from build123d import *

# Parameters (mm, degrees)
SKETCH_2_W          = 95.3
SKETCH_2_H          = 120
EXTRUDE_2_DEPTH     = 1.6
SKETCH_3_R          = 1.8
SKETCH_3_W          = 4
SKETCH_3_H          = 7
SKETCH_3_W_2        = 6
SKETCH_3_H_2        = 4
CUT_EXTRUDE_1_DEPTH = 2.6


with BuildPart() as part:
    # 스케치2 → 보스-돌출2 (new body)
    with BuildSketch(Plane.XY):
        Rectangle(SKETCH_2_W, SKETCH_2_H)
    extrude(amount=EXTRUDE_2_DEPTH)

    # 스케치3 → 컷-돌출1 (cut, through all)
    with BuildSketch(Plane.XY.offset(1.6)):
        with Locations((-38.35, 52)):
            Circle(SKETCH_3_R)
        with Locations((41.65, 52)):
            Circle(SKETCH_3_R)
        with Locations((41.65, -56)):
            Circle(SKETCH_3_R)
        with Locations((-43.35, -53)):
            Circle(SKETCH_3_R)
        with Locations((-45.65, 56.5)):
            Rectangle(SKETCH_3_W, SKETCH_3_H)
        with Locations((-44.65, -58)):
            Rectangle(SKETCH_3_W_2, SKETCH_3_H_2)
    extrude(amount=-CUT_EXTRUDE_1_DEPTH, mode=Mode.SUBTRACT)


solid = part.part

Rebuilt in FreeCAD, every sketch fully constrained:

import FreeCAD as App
import Part
import Sketcher
from FreeCAD import Vector

doc = App.newDocument("Part")
body = doc.addObject("PartDesign::Body", "Body")

# Sketch on XY plane
sketch1 = doc.addObject("Sketcher::SketchObject", "Sketch")
body.addObject(sketch1)
sketch1.AttachmentSupport = (doc.XY_Plane, [""])
sketch1.MapMode = "FlatFace"
sketch1.addGeometry(Part.LineSegment(Vector(-48, 60, 0), Vector(-48, -60, 0)), False)
sketch1.addGeometry(Part.LineSegment(Vector(-48, -60, 0), Vector(48, -60, 0)), False)
sketch1.addGeometry(Part.LineSegment(Vector(48, -60, 0), Vector(48, 60, 0)), False)
sketch1.addGeometry(Part.LineSegment(Vector(48, 60, 0), Vector(-48, 60, 0)), False)
sketch1.addConstraint(Sketcher.Constraint("Coincident", 0, 2, 1, 1))
sketch1.addConstraint(Sketcher.Constraint("Coincident", 1, 2, 2, 1))
sketch1.addConstraint(Sketcher.Constraint("Coincident", 2, 2, 3, 1))
sketch1.addConstraint(Sketcher.Constraint("Coincident", 3, 2, 0, 1))
sketch1.addConstraint(Sketcher.Constraint("Vertical", 0))
sketch1.addConstraint(Sketcher.Constraint("Horizontal", 1))
sketch1.addConstraint(Sketcher.Constraint("Vertical", 2))
sketch1.addConstraint(Sketcher.Constraint("Horizontal", 3))
sketch1.addConstraint(Sketcher.Constraint("Symmetric", 0, 2, 2, 2, -1, 1))
sketch1.addConstraint(Sketcher.Constraint("DistanceY", 0, 2, 0, 1, 120.0))
sketch1.addConstraint(Sketcher.Constraint("DistanceX", 1, 1, 1, 2, 95.3))
pad1 = doc.addObject("PartDesign::Pad", "Pad")
body.addObject(pad1)
pad1.Profile = sketch1
pad1.Length = 1.6

# Sketch on XY plane
sketch2 = doc.addObject("Sketcher::SketchObject", "Sketch001")
body.addObject(sketch2)
sketch2.AttachmentSupport = (doc.XY_Plane, [""])
sketch2.MapMode = "FlatFace"
sketch2.AttachmentOffset = App.Placement(Vector(0, 0, 1.6), App.Rotation())
sketch2.addGeometry(Part.Circle(Vector(-38.4, 52, 0), Vector(0, 0, 1), 1.8), False)
sketch2.addGeometry(Part.Circle(Vector(41.6, 52, 0), Vector(0, 0, 1), 1.8), False)
sketch2.addGeometry(Part.Circle(Vector(41.6, -56, 0), Vector(0, 0, 1), 1.8), False)
sketch2.addGeometry(Part.Circle(Vector(-43.4, -53, 0), Vector(0, 0, 1), 1.8), False)
sketch2.addGeometry(Part.LineSegment(Vector(-47.6, 60, 0), Vector(-47.6, 53, 0)), False)
sketch2.addGeometry(Part.LineSegment(Vector(-47.6, 53, 0), Vector(-43.6, 53, 0)), False)
sketch2.addGeometry(Part.LineSegment(Vector(-43.6, 53, 0), Vector(-43.6, 60, 0)), False)
sketch2.addGeometry(Part.LineSegment(Vector(-43.6, 60, 0), Vector(-47.6, 60, 0)), False)
sketch2.addGeometry(Part.LineSegment(Vector(-47.6, -56, 0), Vector(-47.6, -60, 0)), False)
sketch2.addGeometry(Part.LineSegment(Vector(-47.6, -60, 0), Vector(-41.6, -60, 0)), False)
sketch2.addGeometry(Part.LineSegment(Vector(-41.6, -60, 0), Vector(-41.6, -56, 0)), False)
sketch2.addGeometry(Part.LineSegment(Vector(-41.6, -56, 0), Vector(-47.6, -56, 0)), False)
sketch2.addConstraint(Sketcher.Constraint("Coincident", 4, 2, 5, 1))
sketch2.addConstraint(Sketcher.Constraint("Coincident", 5, 2, 6, 1))
sketch2.addConstraint(Sketcher.Constraint("Coincident", 6, 2, 7, 1))
sketch2.addConstraint(Sketcher.Constraint("Coincident", 7, 2, 4, 1))
sketch2.addConstraint(Sketcher.Constraint("Coincident", 8, 2, 9, 1))
sketch2.addConstraint(Sketcher.Constraint("Coincident", 9, 2, 10, 1))
sketch2.addConstraint(Sketcher.Constraint("Coincident", 10, 2, 11, 1))
sketch2.addConstraint(Sketcher.Constraint("Coincident", 11, 2, 8, 1))
sketch2.addConstraint(Sketcher.Constraint("Vertical", 4))
sketch2.addConstraint(Sketcher.Constraint("Horizontal", 5))
sketch2.addConstraint(Sketcher.Constraint("Vertical", 6))
sketch2.addConstraint(Sketcher.Constraint("Horizontal", 7))
sketch2.addConstraint(Sketcher.Constraint("Vertical", 8))
sketch2.addConstraint(Sketcher.Constraint("Horizontal", 9))
sketch2.addConstraint(Sketcher.Constraint("Vertical", 10))
sketch2.addConstraint(Sketcher.Constraint("Horizontal", 11))
sketch2.addConstraint(Sketcher.Constraint("Equal", 0, 1))
sketch2.addConstraint(Sketcher.Constraint("Equal", 1, 2))
sketch2.addConstraint(Sketcher.Constraint("Equal", 2, 3))
sketch2.addConstraint(Sketcher.Constraint("Symmetric", 7, 2, 8, 2, -1))
sketch2.addConstraint(Sketcher.Constraint("Horizontal", 0, 3, 1, 3))
sketch2.addConstraint(Sketcher.Constraint("Horizontal", 2, 3, 10, 2))
sketch2.addConstraint(Sketcher.Constraint("Vertical", 1, 3, 2, 3))
sketch2.addConstraint(Sketcher.Constraint("Equal", 7, 8))
sketch2.addConstraint(Sketcher.Constraint("Diameter", 0, 3.6))
sketch2.addConstraint(Sketcher.Constraint("DistanceX", 5, 1, 5, 2, 4.0))
sketch2.addConstraint(Sketcher.Constraint("DistanceX", 9, 1, 9, 2, 6.0))
sketch2.addConstraint(Sketcher.Constraint("DistanceY", 4, 2, 4, 1, 7.0))
sketch2.addConstraint(Sketcher.Constraint("DistanceY", -1, 1, 0, 3, 52.0))
sketch2.addConstraint(Sketcher.Constraint("DistanceY", 2, 3, -1, 1, 56.0))
sketch2.addConstraint(Sketcher.Constraint("DistanceY", 3, 3, -1, 1, 53.0))
sketch2.addConstraint(Sketcher.Constraint("DistanceX", 0, 3, 1, 3, 80.0))
sketch2.addConstraint(Sketcher.Constraint("DistanceX", 3, 3, 2, 3, 85.0))
sketch2.addConstraint(Sketcher.Constraint("DistanceX", 4, 2, 0, 3, 9.3))
sketch2.addConstraint(Sketcher.Constraint("DistanceX", 0, 3, -1, 1, 38.35))
pocket1 = doc.addObject("PartDesign::Pocket", "Pocket")
body.addObject(pocket1)
pocket1.Profile = sketch2
pocket1.Type = "ThroughAll"

doc.recompute()
